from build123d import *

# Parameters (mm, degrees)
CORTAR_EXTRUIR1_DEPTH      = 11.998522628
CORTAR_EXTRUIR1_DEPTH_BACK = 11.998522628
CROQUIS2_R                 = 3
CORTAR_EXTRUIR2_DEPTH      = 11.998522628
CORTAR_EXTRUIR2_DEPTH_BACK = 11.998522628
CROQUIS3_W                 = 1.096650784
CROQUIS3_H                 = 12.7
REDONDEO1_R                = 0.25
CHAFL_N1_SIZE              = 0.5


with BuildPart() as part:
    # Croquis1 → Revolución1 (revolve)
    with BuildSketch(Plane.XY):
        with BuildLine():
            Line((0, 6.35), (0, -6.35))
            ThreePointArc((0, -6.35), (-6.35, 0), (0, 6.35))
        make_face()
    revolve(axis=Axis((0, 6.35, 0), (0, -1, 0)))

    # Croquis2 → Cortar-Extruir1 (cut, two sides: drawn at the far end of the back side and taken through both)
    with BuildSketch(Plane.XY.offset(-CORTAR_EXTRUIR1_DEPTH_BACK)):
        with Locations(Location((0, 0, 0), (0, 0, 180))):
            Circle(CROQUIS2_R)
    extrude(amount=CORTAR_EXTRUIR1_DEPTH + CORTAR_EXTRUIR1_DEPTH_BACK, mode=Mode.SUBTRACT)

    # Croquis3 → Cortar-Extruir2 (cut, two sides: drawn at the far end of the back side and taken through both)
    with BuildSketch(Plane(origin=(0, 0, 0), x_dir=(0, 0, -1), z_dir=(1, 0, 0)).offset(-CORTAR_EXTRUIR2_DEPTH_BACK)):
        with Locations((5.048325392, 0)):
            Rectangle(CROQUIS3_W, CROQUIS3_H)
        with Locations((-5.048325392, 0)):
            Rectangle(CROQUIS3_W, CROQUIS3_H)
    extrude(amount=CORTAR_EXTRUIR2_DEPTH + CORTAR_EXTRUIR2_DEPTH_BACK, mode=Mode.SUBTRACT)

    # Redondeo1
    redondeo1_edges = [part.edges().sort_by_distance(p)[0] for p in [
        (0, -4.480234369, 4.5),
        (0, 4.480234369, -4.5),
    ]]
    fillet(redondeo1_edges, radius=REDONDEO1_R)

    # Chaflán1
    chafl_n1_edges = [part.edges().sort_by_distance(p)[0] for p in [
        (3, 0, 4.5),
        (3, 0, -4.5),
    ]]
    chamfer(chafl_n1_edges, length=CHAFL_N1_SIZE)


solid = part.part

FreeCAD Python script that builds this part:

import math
import FreeCAD as App
import Part
import Sketcher
from FreeCAD import Vector


def edges_at(feature, points):
    """Names of the edges that pass closest to the given points."""
    edges = feature.Shape.Edges
    near = lambda p: min(range(len(edges)), key=lambda i: edges[i].distToShape(Part.Vertex(*p))[0])
    return sorted({f"Edge{near(p) + 1}" for p in points})


def add_polygon(sketch, points):
    """Adds a closed chain of lines whose ends are joined by coincident constraints."""
    first, n = sketch.GeometryCount, len(points)
    for a, b in zip(points, points[1:] + points[:1]):
        sketch.addGeometry(Part.LineSegment(App.Vector(*a, 0), App.Vector(*b, 0)), False)
    for i in range(n):
        sketch.addConstraint(Sketcher.Constraint("Coincident", first + i, 2, first + (i + 1) % n, 1))

doc = App.newDocument("Part")
body = doc.addObject("PartDesign::Body", "Body")

sketch1 = body.newObject("Sketcher::SketchObject", "Sketch")
sketch1.AttachmentSupport = (doc.getObject("XY_Plane"), [""])
sketch1.MapMode = "FlatFace"
sketch1.addGeometry([
    Part.LineSegment(Vector(0, -6, 0), Vector(0, 6, 0)),
    Part.ArcOfCircle(Part.Circle(Vector(0, 0, 0), Vector(0, 0, 1), 6), math.radians(90), math.radians(270)),
], False)
sketch1.addConstraint([
    Sketcher.Constraint("Coincident", 0, 1, 1, 2),
    Sketcher.Constraint("Coincident", 1, 1, 0, 2),
    Sketcher.Constraint("Vertical", 0),
    Sketcher.Constraint("Coincident", 1, 3, -1, 1),
    Sketcher.Constraint("PointOnObject", 0, 1, -2),
    Sketcher.Constraint("Radius", 1, 6.35),
])
revolution = body.newObject("PartDesign::Revolution", "Revolution")
revolution.Profile = sketch1
revolution.ReferenceAxis = (sketch1, ["V_Axis"])
revolution.Angle = 360

sketch2 = body.newObject("Sketcher::SketchObject", "Sketch001")
sketch2.AttachmentSupport = (doc.getObject("XY_Plane"), [""])
sketch2.MapMode = "FlatFace"
sketch2.addGeometry(Part.Circle(Vector(0, 0, 0), Vector(0, 0, 1), 3), False)
sketch2.addConstraint([
    Sketcher.Constraint("Coincident", 0, 3, -1, 1),
    Sketcher.Constraint("Diameter", 0, 6.0),
])
pocket1 = body.newObject("PartDesign::Pocket", "Pocket")
pocket1.Profile = sketch2
pocket1.Type = "ThroughAll"
pocket1.Midplane = True

sketch3 = body.newObject("Sketcher::SketchObject", "Sketch002")
sketch3.AttachmentSupport = (doc.getObject("YZ_Plane"), [""])
sketch3.MapMode = "FlatFace"
add_polygon(sketch3, [(6.3, -4.5), (-6.3, -4.5), (-6.3, -5.6), (6.3, -5.6)])
add_polygon(sketch3, [(6.3, 5.6), (-6.3, 5.6), (-6.3, 4.5), (6.3, 4.5)])
sketch3.addConstraint([
    Sketcher.Constraint("Horizontal", 0),
    Sketcher.Constraint("Vertical", 1),
    Sketcher.Constraint("Horizontal", 2),
    Sketcher.Constraint("Vertical", 3),
    Sketcher.Constraint("Horizontal", 4),
    Sketcher.Constraint("Vertical", 5),
    Sketcher.Constraint("Horizontal", 6),
    Sketcher.Constraint("Vertical", 7),
    Sketcher.Constraint("Symmetric", 2, 2, 4, 2, -1, 1),
    Sketcher.Constraint("Symmetric", 0, 2, 6, 2, -1, 1),
    Sketcher.Constraint("Vertical", 1, 2, 4, 2),
    Sketcher.Constraint("DistanceX", 0, 2, 0, 1, 12.7),
    Sketcher.Constraint("DistanceY", 0, 2, 5, 2, 9.0),
    Sketcher.Constraint("DistanceY", 1, 2, 1, 1, 1.096651),
])
pocket2 = body.newObject("PartDesign::Pocket", "Pocket001")
pocket2.Profile = sketch3
pocket2.Type = "ThroughAll"
pocket2.Midplane = True
doc.recompute()

fillet = body.newObject("PartDesign::Fillet", "Fillet")
fillet.Base = (pocket2, edges_at(pocket2, [(0, 4.48, 4.5), (0, 4.48, -4.5)]))
fillet.Radius = 0.25
doc.recompute()

chamfer = body.newObject("PartDesign::Chamfer", "Chamfer")
chamfer.Base = (fillet, edges_at(fillet, [(3, 0, 4.5), (3, 0, -4.5)]))
chamfer.Size = 0.5

doc.recompute()
